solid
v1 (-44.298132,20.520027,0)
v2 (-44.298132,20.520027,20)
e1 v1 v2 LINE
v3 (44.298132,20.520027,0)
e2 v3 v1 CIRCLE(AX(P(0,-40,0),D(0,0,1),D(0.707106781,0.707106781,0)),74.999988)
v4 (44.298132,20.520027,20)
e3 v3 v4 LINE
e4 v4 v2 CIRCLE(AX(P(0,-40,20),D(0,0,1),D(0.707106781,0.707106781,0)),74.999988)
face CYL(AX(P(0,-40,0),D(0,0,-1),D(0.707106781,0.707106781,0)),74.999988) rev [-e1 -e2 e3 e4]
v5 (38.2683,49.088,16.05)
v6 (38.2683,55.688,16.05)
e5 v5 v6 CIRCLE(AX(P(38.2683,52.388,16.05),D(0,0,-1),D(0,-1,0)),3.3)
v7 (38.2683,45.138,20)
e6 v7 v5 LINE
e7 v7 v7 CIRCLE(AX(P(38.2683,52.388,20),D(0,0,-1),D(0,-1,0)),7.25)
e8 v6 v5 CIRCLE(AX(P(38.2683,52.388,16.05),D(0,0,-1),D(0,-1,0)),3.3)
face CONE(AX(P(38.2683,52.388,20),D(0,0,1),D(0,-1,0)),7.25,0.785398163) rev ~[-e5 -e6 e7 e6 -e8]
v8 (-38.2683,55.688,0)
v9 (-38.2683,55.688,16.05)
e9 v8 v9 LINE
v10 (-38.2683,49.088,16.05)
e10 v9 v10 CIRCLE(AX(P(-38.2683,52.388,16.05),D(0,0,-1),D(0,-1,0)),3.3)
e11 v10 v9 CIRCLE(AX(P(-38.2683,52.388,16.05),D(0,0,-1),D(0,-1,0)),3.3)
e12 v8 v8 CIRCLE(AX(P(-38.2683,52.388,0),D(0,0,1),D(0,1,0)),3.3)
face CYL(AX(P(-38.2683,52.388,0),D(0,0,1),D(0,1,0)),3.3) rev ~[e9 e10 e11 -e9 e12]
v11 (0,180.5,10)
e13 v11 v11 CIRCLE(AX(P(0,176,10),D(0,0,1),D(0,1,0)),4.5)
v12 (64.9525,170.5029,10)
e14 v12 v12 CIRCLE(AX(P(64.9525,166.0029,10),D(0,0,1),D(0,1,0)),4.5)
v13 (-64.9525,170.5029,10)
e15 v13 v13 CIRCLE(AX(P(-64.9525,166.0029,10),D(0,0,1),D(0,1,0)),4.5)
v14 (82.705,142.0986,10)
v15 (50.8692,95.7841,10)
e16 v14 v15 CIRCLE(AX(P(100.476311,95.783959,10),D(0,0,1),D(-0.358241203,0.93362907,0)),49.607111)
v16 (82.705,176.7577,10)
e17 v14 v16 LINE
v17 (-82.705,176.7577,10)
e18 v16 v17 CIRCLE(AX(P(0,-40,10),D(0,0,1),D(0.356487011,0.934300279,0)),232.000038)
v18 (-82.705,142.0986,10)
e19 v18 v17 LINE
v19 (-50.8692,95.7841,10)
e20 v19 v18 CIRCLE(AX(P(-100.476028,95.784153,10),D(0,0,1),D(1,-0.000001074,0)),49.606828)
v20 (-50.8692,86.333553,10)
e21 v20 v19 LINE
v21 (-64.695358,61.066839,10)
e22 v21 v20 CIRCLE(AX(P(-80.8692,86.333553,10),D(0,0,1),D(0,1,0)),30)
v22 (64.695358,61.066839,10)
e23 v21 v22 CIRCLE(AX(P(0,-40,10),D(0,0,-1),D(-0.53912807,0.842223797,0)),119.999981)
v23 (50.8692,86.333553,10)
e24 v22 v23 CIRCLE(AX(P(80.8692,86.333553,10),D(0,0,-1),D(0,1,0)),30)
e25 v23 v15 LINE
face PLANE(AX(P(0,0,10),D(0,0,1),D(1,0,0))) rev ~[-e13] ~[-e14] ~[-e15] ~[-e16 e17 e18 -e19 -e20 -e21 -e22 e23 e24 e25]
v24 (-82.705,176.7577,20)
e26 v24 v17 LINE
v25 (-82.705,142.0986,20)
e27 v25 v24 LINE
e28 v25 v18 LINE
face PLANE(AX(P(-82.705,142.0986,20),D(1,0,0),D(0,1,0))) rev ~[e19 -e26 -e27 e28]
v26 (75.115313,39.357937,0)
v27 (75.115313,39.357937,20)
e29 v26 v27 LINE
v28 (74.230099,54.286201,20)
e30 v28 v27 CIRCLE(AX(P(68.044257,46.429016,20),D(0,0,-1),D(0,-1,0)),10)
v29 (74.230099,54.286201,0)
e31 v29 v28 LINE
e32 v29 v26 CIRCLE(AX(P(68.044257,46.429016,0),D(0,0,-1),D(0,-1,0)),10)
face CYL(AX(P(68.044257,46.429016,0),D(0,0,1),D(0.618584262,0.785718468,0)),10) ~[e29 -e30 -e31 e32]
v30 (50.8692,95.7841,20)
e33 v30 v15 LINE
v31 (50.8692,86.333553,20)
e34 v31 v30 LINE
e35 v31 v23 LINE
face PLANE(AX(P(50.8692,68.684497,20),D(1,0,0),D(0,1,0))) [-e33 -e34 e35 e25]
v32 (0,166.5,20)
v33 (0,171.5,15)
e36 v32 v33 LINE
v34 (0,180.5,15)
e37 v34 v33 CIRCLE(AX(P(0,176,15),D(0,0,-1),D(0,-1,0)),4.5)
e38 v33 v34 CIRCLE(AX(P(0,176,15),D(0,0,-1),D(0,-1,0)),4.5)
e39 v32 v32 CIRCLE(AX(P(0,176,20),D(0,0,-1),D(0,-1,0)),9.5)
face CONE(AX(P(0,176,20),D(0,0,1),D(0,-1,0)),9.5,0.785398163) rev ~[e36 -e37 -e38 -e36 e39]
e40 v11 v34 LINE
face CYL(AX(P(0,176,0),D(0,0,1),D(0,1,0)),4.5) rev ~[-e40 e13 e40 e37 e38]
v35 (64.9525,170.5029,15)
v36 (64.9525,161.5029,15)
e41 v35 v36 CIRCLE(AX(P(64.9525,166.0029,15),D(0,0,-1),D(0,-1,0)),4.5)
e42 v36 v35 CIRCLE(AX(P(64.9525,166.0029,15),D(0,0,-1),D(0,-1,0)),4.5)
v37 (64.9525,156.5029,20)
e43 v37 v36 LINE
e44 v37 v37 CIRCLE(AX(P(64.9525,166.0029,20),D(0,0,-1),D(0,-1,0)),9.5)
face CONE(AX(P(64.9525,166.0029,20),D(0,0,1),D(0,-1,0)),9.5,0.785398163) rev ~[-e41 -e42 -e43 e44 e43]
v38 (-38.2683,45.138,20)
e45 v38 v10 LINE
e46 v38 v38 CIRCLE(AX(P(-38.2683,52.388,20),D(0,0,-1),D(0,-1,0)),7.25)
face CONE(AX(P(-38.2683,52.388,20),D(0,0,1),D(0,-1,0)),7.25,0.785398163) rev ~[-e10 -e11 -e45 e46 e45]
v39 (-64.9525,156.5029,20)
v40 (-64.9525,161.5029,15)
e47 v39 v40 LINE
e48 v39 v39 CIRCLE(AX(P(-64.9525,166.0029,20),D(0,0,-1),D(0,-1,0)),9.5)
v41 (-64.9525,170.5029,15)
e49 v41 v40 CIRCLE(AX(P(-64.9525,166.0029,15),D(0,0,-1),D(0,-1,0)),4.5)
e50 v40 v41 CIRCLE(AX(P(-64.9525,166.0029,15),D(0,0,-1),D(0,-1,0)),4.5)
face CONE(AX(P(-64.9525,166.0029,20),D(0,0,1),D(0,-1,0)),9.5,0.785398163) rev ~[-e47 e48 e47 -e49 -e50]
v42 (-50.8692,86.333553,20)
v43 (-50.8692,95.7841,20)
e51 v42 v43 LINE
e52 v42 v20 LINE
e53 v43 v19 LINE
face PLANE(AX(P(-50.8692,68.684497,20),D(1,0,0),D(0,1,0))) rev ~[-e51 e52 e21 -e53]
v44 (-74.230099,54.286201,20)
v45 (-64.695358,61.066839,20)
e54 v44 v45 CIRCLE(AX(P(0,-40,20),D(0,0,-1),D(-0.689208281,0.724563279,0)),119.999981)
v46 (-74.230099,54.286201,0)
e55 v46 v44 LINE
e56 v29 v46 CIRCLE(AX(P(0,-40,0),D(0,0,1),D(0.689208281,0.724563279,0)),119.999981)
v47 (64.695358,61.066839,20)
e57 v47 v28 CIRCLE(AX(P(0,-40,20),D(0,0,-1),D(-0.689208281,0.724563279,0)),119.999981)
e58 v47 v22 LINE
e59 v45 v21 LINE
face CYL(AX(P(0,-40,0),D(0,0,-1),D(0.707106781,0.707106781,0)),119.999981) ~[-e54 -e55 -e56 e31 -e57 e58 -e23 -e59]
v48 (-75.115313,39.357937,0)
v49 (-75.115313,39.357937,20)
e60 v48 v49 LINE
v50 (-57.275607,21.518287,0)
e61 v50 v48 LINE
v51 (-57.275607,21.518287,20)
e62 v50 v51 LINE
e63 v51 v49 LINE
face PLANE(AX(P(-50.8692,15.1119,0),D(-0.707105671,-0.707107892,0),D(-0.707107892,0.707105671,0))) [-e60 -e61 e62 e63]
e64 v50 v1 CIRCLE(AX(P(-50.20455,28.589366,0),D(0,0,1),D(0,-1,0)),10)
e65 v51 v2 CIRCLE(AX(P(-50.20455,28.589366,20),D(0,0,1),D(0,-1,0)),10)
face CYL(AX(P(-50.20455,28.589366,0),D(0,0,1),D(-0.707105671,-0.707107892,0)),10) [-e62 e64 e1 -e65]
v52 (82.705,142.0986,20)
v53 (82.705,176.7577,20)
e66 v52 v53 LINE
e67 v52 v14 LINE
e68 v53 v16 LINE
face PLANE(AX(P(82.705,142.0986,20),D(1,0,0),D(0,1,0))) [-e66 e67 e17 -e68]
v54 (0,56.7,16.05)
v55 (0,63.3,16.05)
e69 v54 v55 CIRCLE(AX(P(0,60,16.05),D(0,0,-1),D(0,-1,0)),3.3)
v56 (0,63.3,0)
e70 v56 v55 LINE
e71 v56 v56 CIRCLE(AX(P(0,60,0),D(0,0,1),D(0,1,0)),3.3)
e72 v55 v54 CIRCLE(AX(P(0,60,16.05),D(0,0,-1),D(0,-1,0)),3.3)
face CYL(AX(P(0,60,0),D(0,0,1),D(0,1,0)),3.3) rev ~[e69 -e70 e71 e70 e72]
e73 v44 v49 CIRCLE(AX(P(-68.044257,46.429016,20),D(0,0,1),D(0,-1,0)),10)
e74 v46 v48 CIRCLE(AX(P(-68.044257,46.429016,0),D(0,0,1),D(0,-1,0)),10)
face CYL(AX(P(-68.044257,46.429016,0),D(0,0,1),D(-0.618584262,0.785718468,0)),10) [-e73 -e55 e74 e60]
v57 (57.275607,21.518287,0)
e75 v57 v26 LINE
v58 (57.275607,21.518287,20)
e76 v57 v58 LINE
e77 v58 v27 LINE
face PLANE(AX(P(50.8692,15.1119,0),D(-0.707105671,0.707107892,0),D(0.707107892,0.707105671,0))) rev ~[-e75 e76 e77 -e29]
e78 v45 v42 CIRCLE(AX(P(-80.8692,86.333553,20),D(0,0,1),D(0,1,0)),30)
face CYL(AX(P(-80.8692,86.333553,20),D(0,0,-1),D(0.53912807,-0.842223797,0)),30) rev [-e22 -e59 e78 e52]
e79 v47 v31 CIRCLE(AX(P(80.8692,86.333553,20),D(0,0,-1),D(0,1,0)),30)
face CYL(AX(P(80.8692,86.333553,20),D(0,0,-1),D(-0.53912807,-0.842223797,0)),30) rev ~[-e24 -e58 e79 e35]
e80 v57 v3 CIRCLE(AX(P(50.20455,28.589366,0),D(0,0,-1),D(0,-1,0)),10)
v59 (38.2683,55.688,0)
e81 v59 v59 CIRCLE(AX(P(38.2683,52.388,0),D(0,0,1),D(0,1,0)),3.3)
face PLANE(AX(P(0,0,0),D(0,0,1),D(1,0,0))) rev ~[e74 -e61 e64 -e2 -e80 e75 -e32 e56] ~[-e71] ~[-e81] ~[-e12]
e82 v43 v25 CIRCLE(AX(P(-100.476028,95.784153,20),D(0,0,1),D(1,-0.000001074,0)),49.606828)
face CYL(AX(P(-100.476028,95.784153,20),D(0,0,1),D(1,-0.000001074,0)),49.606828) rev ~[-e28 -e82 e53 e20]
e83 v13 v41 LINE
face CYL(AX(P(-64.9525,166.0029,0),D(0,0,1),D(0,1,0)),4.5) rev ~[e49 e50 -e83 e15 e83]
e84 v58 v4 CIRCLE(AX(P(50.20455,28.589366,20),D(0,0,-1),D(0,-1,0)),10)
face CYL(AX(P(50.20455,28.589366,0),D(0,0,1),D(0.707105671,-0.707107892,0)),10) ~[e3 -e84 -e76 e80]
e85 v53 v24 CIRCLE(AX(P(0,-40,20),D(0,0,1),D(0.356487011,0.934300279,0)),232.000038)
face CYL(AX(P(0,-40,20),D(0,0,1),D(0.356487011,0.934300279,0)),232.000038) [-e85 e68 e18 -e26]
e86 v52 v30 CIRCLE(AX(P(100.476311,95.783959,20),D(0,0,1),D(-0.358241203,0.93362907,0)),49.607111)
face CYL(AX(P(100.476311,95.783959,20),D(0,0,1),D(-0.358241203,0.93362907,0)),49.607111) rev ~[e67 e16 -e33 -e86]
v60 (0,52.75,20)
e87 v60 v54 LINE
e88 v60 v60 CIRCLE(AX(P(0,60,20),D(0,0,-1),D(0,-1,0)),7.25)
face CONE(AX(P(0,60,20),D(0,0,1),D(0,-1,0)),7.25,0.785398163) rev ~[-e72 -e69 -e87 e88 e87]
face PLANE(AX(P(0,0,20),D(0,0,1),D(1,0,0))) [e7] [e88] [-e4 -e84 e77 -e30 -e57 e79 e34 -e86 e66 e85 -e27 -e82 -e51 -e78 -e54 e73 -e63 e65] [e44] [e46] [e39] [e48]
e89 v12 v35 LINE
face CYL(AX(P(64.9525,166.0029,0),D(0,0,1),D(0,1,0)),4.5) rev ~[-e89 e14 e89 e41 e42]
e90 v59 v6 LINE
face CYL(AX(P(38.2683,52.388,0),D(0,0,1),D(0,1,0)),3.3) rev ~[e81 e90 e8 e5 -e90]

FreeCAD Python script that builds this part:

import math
import FreeCAD as App
import Part
import Sketcher
from FreeCAD import Vector
Q = App.Units.Quantity


def edges_at(feature, points):
    """Names of the edges that pass closest to the given points."""
    edges = feature.Shape.Edges
    near = lambda p: min(range(len(edges)), key=lambda i: edges[i].distToShape(Part.Vertex(*p))[0])
    return sorted({f"Edge{near(p) + 1}" for p in points})

doc = App.newDocument("Part")
body = doc.addObject("PartDesign::Body", "Body")

sketch1 = body.newObject("Sketcher::SketchObject", "Sketch")
sketch1.AttachmentSupport = (doc.getObject("XY_Plane"), [""])
sketch1.MapMode = "FlatFace"
sketch1.addGeometry(Part.ArcOfCircle(Part.Circle(Vector(0, -40, 0), Vector(0, 0, 1), 120), math.radians(46), math.radians(134)), False)
sketch1.addGeometry(Part.LineSegment(Vector(-83, 47, 0), Vector(-51, 15, 0)), False)
sketch1.addGeometry(Part.ArcOfCircle(Part.Circle(Vector(0, -40, 0), Vector(0, 0, 1), 75), math.radians(47), math.radians(133)), False)
sketch1.addGeometry(Part.LineSegment(Vector(51, 15, 0), Vector(83, 47, 0)), False)
sketch1.addConstraint(Sketcher.Constraint("Coincident", 0, 2, 1, 1))
sketch1.addConstraint(Sketcher.Constraint("Coincident", 1, 2, 2, 2))
sketch1.addConstraint(Sketcher.Constraint("Coincident", 2, 1, 3, 1))
sketch1.addConstraint(Sketcher.Constraint("Coincident", 3, 2, 0, 1))
sketch1.addConstraint(Sketcher.Constraint("Coincident", 2, 3, 0, 3))
sketch1.addConstraint(Sketcher.Constraint("Symmetric", 1, 2, 2, 1, -2))
sketch1.addConstraint(Sketcher.Constraint("Perpendicular", 1, 3))
sketch1.addConstraint(Sketcher.Constraint("Horizontal", 0, 2, 3, 2))
sketch1.addConstraint(Sketcher.Constraint("Radius", 0, Q("120 mm")))
sketch1.addConstraint(Sketcher.Constraint("Radius", 2, Q("75 mm")))
sketch1.addConstraint(Sketcher.Constraint("DistanceY", 0, 3, -1, 1, Q("40 mm")))
sketch1.addConstraint(Sketcher.Constraint("DistanceX", 0, 2, 3, 2, Q("165.41 mm")))
pad1 = body.newObject("PartDesign::Pad", "Pad")
pad1.Profile = sketch1
pad1.Length = 20

sketch2 = body.newObject("Sketcher::SketchObject", "Sketch001")
sketch2.AttachmentSupport = (doc.getObject("XY_Plane"), [""])
sketch2.MapMode = "FlatFace"
sketch2.AttachmentOffset = App.Placement(Vector(0, 0, 20), App.Rotation())
sketch2.addGeometry(Part.ArcOfCircle(Part.Circle(Vector(0, -40, 0), Vector(0, 0, 1), 120), math.radians(65), math.radians(115)), False)
sketch2.addGeometry(Part.LineSegment(Vector(51, 69, 0), Vector(51, 96, 0)), False)
sketch2.addGeometry(Part.ArcOfCircle(Part.Circle(Vector(100, 96, 0), Vector(0, 0, 1), 50), math.radians(111), math.radians(180)), False)
sketch2.addGeometry(Part.LineSegment(Vector(83, 142, 0), Vector(83, 177, 0)), False)
sketch2.addGeometry(Part.ArcOfCircle(Part.Circle(Vector(0, -40, 0), Vector(0, 0, 1), 232), math.radians(69), math.radians(111)), False)
sketch2.addGeometry(Part.LineSegment(Vector(-83, 177, 0), Vector(-83, 142, 0)), False)
sketch2.addGeometry(Part.ArcOfCircle(Part.Circle(Vector(-100, 96, 0), Vector(0, 0, 1), 50), math.radians(0), math.radians(69)), False)
sketch2.addGeometry(Part.LineSegment(Vector(-51, 96, 0), Vector(-51, 69, 0)), False)
sketch2.addConstraint(Sketcher.Constraint("Coincident", 0, 1, 1, 1))
sketch2.addConstraint(Sketcher.Constraint("Tangent", 1, 2, 2, 2))
sketch2.addConstraint(Sketcher.Constraint("Coincident", 2, 1, 3, 1))
sketch2.addConstraint(Sketcher.Constraint("Coincident", 3, 2, 4, 1))
sketch2.addConstraint(Sketcher.Constraint("Coincident", 4, 2, 5, 1))
sketch2.addConstraint(Sketcher.Constraint("Coincident", 5, 2, 6, 2))
sketch2.addConstraint(Sketcher.Constraint("Tangent", 6, 1, 7, 1))
sketch2.addConstraint(Sketcher.Constraint("Coincident", 7, 2, 0, 2))
sketch2.addConstraint(Sketcher.Constraint("Vertical", 1))
sketch2.addConstraint(Sketcher.Constraint("Vertical", 3))
sketch2.addConstraint(Sketcher.Constraint("Vertical", 5))
sketch2.addConstraint(Sketcher.Constraint("Vertical", 7))
sketch2.addConstraint(Sketcher.Constraint("Coincident", 4, 3, 0, 3))
sketch2.addConstraint(Sketcher.Constraint("Equal", 2, 6))
sketch2.addConstraint(Sketcher.Constraint("Symmetric", 2, 3, 6, 3, -2))
sketch2.addConstraint(Sketcher.Constraint("Symmetric", 3, 2, 4, 2, -2))
sketch2.addConstraint(Sketcher.Constraint("Radius", 0, Q("120 mm")))
sketch2.addConstraint(Sketcher.Constraint("Radius", 4, Q("232 mm")))
sketch2.addConstraint(Sketcher.Constraint("DistanceY", 0, 3, -1, 1, Q("40 mm")))
sketch2.addConstraint(Sketcher.Constraint("Radius", 2, Q("49.607 mm")))
sketch2.addConstraint(Sketcher.Constraint("DistanceY", 3, 1, 3, 2, Q("34.659 mm")))
sketch2.addConstraint(Sketcher.Constraint("DistanceX", 4, 2, 3, 2, Q("165.41 mm")))
sketch2.addConstraint(Sketcher.Constraint("DistanceY", 1, 1, 1, 2, Q("27.0996 mm")))
pad2 = body.newObject("PartDesign::Pad", "Pad001")
pad2.Profile = sketch2
pad2.Length = 10
pad2.Reversed = True

sketch3 = body.newObject("Sketcher::SketchObject", "Sketch002")
sketch3.AttachmentSupport = (doc.getObject("XY_Plane"), [""])
sketch3.MapMode = "FlatFace"
sketch3.addGeometry(Part.Circle(Vector(38.3, 52.4, 0), Vector(0, 0, 1), 3.3), False)
sketch3.addGeometry(Part.Circle(Vector(0, 60, 0), Vector(0, 0, 1), 3.3), False)
sketch3.addGeometry(Part.Circle(Vector(-38.3, 52.4, 0), Vector(0, 0, 1), 3.3), False)
sketch3.addConstraint(Sketcher.Constraint("Equal", 0, 1))
sketch3.addConstraint(Sketcher.Constraint("Equal", 1, 2))
sketch3.addConstraint(Sketcher.Constraint("Symmetric", 0, 3, 2, 3, -2))
sketch3.addConstraint(Sketcher.Constraint("PointOnObject", 1, 3, -2))
sketch3.addConstraint(Sketcher.Constraint("Diameter", 0, Q("6.6 mm")))
sketch3.addConstraint(Sketcher.Constraint("DistanceY", -1, 1, 1, 3, Q("60 mm")))
sketch3.addConstraint(Sketcher.Constraint("DistanceY", -1, 1, 0, 3, Q("52.388 mm")))
sketch3.addConstraint(Sketcher.Constraint("DistanceX", -1, 1, 0, 3, Q("38.2683 mm")))
doc.recompute()
hole = body.newObject("PartDesign::Hole", "Hole")
hole.Profile = sketch3
hole.ThreadType = "None"
hole.Diameter = 6.6
hole.DepthType = "ThroughAll"
hole.Reversed = True

sketch4 = body.newObject("Sketcher::SketchObject", "Sketch003")
sketch4.AttachmentSupport = (doc.getObject("XY_Plane"), [""])
sketch4.MapMode = "FlatFace"
sketch4.addGeometry(Part.Circle(Vector(65, 166, 0), Vector(0, 0, 1), 4.5), False)
sketch4.addGeometry(Part.Circle(Vector(0, 176, 0), Vector(0, 0, 1), 4.5), False)
sketch4.addGeometry(Part.Circle(Vector(-65, 166, 0), Vector(0, 0, 1), 4.5), False)
sketch4.addConstraint(Sketcher.Constraint("Equal", 0, 1))
sketch4.addConstraint(Sketcher.Constraint("Equal", 1, 2))
sketch4.addConstraint(Sketcher.Constraint("Symmetric", 0, 3, 2, 3, -2))
sketch4.addConstraint(Sketcher.Constraint("PointOnObject", 1, 3, -2))
sketch4.addConstraint(Sketcher.Constraint("Diameter", 0, Q("9 mm")))
sketch4.addConstraint(Sketcher.Constraint("DistanceY", -1, 1, 1, 3, Q("176 mm")))
sketch4.addConstraint(Sketcher.Constraint("DistanceY", -1, 1, 0, 3, Q("166.003 mm")))
sketch4.addConstraint(Sketcher.Constraint("DistanceX", 2, 3, 0, 3, Q("129.905 mm")))
doc.recompute()
hole2 = body.newObject("PartDesign::Hole", "Hole001")
hole2.Profile = sketch4
hole2.ThreadType = "None"
hole2.Diameter = 9
hole2.DepthType = "ThroughAll"
hole2.Reversed = True
doc.recompute()

fillet = body.newObject("PartDesign::Fillet", "Fillet")
fillet.Base = (hole2, edges_at(hole2, [(50.869, 68.684, 15), (-50.869, 68.684, 15)]))
fillet.Radius = 30
doc.recompute()

fillet2 = body.newObject("PartDesign::Fillet", "Fillet001")
fillet2.Base = (fillet, edges_at(fillet, [
    (-82.705, 46.948, 10),
    (82.705, 46.948, 10),
    (50.869, 15.112, 10),
    (-50.869, 15.112, 10),
]))
fillet2.Radius = 10

sketch5 = body.newObject("Sketcher::SketchObject", "Sketch004")
sketch5.AttachmentSupport = (doc.getObject("XY_Plane"), [""])
sketch5.MapMode = "FlatFace"
sketch5.AttachmentOffset = App.Placement(Vector(0, 0, 20), App.Rotation())
sketch5.addGeometry(Part.Circle(Vector(65, 166, 0), Vector(0, 0, 1), 4.5), False)
sketch5.addGeometry(Part.Circle(Vector(0, 176, 0), Vector(0, 0, 1), 4.5), False)
sketch5.addGeometry(Part.Circle(Vector(-65, 166, 0), Vector(0, 0, 1), 4.5), False)
sketch5.addConstraint(Sketcher.Constraint("Equal", 0, 1))
sketch5.addConstraint(Sketcher.Constraint("Equal", 1, 2))
sketch5.addConstraint(Sketcher.Constraint("Symmetric", 0, 3, 2, 3, -2))
sketch5.addConstraint(Sketcher.Constraint("PointOnObject", 1, 3, -2))
sketch5.addConstraint(Sketcher.Constraint("Diameter", 0, Q("9 mm")))
sketch5.addConstraint(Sketcher.Constraint("DistanceY", -1, 1, 1, 3, Q("176 mm")))
sketch5.addConstraint(Sketcher.Constraint("DistanceY", -1, 1, 0, 3, Q("166.003 mm")))
sketch5.addConstraint(Sketcher.Constraint("DistanceX", 2, 3, 0, 3, Q("129.905 mm")))
doc.recompute()
hole3 = body.newObject("PartDesign::Hole", "Hole002")
hole3.Profile = sketch5
hole3.ThreadType = "None"
hole3.Diameter = 9
hole3.DepthType = "ThroughAll"
hole3.HoleCutType = "Countersink"
hole3.HoleCutDiameter = 19
hole3.HoleCutCountersinkAngle = 90

sketch6 = body.newObject("Sketcher::SketchObject", "Sketch005")
sketch6.AttachmentSupport = (doc.getObject("XY_Plane"), [""])
sketch6.MapMode = "FlatFace"
sketch6.AttachmentOffset = App.Placement(Vector(0, 0, 20), App.Rotation())
sketch6.addGeometry(Part.Circle(Vector(38.3, 52.4, 0), Vector(0, 0, 1), 3.3), False)
sketch6.addGeometry(Part.Circle(Vector(0, 60, 0), Vector(0, 0, 1), 3.3), False)
sketch6.addGeometry(Part.Circle(Vector(-38.3, 52.4, 0), Vector(0, 0, 1), 3.3), False)
sketch6.addConstraint(Sketcher.Constraint("Equal", 0, 1))
sketch6.addConstraint(Sketcher.Constraint("Equal", 1, 2))
sketch6.addConstraint(Sketcher.Constraint("Symmetric", 0, 3, 2, 3, -2))
sketch6.addConstraint(Sketcher.Constraint("PointOnObject", 1, 3, -2))
sketch6.addConstraint(Sketcher.Constraint("Diameter", 0, Q("6.6 mm")))
sketch6.addConstraint(Sketcher.Constraint("DistanceY", -1, 1, 1, 3, Q("60 mm")))
sketch6.addConstraint(Sketcher.Constraint("DistanceY", -1, 1, 0, 3, Q("52.388 mm")))
sketch6.addConstraint(Sketcher.Constraint("DistanceX", -1, 1, 0, 3, Q("38.2683 mm")))
doc.recompute()
hole4 = body.newObject("PartDesign::Hole", "Hole003")
hole4.Profile = sketch6
hole4.ThreadType = "None"
hole4.Diameter = 6.6
hole4.DepthType = "ThroughAll"
hole4.HoleCutType = "Countersink"
hole4.HoleCutDiameter = 14.5
hole4.HoleCutCountersinkAngle = 90

doc.recompute()
